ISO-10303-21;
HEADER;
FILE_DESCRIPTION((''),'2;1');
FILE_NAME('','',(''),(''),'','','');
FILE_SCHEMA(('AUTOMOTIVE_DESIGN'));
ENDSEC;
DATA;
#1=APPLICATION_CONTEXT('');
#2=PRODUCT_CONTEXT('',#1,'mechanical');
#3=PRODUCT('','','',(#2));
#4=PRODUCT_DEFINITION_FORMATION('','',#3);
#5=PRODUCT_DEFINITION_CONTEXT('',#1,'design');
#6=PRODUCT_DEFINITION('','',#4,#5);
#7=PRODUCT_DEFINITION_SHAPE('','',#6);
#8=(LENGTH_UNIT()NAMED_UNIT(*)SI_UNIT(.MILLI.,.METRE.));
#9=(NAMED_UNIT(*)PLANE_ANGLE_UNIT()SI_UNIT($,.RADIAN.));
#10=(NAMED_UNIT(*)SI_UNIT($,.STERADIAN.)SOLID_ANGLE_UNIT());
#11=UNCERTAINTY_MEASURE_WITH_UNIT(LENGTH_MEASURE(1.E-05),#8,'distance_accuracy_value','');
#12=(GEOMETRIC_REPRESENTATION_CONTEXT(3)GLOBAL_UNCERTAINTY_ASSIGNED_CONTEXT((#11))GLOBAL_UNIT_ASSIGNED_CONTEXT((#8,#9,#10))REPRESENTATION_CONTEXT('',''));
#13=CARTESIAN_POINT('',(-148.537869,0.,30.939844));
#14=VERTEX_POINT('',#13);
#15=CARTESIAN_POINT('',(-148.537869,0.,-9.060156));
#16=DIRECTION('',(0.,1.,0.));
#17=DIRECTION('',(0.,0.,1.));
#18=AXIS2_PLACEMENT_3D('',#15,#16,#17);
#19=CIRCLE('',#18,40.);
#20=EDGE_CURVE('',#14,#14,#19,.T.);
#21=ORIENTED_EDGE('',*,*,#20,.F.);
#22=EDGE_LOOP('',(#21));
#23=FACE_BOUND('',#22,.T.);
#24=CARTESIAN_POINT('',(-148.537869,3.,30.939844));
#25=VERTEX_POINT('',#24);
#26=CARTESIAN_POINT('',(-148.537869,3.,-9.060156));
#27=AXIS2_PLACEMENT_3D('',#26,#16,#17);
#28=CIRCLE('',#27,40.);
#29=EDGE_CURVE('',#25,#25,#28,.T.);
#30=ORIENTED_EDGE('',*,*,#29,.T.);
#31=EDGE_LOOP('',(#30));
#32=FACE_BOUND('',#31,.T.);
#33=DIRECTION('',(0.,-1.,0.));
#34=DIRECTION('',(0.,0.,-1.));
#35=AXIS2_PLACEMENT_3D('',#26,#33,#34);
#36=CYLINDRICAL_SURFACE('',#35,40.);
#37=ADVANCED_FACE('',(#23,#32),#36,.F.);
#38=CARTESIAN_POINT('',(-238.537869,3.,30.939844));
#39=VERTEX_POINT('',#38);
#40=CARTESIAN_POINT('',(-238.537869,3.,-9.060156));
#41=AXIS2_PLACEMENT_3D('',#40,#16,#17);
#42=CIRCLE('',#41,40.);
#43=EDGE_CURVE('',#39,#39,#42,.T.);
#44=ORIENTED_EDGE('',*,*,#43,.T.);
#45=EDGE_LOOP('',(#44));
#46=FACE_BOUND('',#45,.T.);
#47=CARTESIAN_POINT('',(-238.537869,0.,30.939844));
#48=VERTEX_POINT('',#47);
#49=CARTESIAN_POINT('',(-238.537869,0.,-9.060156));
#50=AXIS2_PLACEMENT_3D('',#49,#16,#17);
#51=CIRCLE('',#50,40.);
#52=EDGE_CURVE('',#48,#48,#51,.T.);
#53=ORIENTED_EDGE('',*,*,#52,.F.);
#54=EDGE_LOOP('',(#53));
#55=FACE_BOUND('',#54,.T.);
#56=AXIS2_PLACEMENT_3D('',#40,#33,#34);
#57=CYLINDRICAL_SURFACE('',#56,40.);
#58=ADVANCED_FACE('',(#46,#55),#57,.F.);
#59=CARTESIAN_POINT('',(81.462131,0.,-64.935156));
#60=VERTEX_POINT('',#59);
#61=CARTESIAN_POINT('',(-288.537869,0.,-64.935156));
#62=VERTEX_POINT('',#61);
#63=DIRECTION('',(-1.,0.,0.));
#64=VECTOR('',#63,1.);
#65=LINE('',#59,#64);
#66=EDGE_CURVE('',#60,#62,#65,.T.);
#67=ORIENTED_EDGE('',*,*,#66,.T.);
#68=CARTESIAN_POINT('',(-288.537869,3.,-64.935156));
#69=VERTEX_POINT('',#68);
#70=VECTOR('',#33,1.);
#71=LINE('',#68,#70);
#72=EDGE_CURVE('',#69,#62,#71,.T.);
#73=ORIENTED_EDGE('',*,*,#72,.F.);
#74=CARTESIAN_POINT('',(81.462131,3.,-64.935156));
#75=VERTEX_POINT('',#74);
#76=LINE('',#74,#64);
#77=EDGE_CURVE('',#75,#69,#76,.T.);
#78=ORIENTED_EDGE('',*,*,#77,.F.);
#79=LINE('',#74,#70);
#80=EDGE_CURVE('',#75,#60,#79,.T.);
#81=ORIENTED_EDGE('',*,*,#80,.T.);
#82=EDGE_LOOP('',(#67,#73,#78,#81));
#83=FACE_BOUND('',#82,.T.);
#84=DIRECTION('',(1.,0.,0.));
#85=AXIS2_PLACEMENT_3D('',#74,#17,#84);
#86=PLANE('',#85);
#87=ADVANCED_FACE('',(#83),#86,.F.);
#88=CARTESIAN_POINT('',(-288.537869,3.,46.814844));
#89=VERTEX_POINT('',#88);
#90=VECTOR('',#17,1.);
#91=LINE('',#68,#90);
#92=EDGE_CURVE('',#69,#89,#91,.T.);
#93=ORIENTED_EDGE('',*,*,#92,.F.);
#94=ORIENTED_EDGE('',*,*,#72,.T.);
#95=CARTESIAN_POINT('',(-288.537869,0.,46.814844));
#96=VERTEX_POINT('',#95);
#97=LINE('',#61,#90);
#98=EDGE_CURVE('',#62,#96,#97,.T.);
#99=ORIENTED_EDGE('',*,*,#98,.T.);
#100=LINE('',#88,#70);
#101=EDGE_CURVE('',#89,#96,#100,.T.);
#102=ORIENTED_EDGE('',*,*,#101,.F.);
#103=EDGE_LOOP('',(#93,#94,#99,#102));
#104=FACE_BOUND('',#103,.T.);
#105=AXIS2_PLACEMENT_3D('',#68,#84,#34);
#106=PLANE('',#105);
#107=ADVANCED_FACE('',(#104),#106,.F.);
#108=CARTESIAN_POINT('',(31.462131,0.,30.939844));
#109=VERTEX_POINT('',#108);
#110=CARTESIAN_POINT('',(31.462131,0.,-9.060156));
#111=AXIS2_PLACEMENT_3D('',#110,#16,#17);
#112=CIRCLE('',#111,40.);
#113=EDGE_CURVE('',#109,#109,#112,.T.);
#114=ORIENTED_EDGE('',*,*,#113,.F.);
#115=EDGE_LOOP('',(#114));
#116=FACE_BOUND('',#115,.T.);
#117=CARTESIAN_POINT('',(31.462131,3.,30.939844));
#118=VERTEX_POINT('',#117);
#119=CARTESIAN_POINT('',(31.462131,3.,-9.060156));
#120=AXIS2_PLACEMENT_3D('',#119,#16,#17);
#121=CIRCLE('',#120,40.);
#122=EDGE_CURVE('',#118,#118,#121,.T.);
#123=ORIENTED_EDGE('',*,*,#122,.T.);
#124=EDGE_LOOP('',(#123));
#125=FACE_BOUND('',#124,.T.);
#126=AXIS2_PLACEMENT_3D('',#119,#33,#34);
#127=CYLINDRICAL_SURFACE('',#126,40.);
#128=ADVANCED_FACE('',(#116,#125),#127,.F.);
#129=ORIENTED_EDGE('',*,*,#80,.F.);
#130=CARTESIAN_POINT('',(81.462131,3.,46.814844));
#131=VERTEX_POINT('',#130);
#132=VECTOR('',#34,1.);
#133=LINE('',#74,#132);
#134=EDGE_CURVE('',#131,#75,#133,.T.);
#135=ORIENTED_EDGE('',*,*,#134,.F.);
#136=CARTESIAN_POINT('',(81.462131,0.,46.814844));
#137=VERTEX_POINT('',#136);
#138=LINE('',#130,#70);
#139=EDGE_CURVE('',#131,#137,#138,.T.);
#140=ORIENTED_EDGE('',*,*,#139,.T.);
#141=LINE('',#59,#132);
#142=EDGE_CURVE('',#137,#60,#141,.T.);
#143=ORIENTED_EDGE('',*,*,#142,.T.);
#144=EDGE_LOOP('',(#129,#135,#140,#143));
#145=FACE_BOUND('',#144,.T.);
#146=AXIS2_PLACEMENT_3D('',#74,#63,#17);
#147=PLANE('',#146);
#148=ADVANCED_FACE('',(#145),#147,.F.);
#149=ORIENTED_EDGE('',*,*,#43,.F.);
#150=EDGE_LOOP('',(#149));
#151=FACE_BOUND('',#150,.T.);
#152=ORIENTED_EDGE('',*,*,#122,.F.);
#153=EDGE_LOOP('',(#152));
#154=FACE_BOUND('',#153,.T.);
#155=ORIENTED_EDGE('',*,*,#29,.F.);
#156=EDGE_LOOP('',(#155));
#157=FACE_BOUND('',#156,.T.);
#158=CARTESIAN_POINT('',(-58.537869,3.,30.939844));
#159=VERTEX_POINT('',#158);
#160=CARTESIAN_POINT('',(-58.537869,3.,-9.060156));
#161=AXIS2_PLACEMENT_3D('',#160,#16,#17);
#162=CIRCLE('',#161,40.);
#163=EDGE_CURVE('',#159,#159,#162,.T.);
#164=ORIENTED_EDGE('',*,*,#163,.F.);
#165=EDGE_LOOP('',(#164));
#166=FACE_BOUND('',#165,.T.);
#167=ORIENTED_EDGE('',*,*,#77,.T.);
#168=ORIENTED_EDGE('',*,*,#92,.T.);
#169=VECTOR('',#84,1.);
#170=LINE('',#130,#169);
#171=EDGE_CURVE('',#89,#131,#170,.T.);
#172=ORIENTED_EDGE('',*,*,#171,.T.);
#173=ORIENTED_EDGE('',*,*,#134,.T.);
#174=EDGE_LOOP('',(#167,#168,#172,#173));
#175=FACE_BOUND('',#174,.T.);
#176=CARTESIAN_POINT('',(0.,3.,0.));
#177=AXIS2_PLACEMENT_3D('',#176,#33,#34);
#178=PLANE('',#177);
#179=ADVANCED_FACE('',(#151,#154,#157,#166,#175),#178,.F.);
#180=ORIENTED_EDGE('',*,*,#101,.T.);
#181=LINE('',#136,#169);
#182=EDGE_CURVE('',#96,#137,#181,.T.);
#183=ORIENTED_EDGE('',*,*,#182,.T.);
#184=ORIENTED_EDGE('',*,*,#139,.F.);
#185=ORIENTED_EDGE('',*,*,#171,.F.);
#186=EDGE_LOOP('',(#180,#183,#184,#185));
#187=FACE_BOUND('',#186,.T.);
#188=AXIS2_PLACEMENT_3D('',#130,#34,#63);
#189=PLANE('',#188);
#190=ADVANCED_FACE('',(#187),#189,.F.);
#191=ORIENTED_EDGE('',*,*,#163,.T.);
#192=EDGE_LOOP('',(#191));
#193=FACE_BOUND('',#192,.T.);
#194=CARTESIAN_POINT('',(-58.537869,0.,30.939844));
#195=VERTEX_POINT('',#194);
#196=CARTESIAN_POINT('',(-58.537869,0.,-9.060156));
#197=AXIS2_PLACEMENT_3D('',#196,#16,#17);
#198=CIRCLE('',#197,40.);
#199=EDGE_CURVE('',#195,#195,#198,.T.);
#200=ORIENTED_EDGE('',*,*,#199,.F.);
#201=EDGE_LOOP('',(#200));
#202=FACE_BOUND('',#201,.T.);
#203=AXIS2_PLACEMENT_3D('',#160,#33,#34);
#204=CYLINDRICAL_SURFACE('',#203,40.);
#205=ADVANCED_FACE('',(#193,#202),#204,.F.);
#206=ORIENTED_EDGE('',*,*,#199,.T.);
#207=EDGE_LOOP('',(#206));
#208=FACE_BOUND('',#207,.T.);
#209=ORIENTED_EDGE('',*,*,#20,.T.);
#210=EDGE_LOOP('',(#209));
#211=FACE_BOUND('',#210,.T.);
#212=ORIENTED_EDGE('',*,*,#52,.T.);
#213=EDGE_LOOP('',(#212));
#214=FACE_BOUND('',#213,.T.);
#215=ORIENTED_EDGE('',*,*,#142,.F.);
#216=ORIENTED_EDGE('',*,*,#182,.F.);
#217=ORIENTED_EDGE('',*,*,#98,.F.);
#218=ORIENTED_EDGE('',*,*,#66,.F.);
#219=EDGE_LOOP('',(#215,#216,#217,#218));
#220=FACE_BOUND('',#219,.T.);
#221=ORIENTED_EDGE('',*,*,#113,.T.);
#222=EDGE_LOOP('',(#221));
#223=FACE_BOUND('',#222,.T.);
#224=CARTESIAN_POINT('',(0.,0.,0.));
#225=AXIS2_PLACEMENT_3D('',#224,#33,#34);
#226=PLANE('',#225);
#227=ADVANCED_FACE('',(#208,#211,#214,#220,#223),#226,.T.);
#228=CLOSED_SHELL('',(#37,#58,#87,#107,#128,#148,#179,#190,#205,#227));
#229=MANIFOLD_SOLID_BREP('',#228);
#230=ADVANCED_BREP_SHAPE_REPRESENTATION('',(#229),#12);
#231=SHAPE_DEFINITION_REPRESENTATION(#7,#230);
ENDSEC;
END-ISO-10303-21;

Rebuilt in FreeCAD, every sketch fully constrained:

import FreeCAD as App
import Part
import Sketcher
from FreeCAD import Vector


def add_polygon(sketch, points):
    """Adds a closed chain of lines whose ends are joined by coincident constraints."""
    first, n = sketch.GeometryCount, len(points)
    for a, b in zip(points, points[1:] + points[:1]):
        sketch.addGeometry(Part.LineSegment(App.Vector(*a, 0), App.Vector(*b, 0)), False)
    for i in range(n):
        sketch.addConstraint(Sketcher.Constraint("Coincident", first + i, 2, first + (i + 1) % n, 1))

doc = App.newDocument("Part")
body = doc.addObject("PartDesign::Body", "Body")

# Sketch on XZ plane
sketch1 = body.newObject("Sketcher::SketchObject", "Sketch")
sketch1.AttachmentSupport = (doc.getObject("XZ_Plane"), [""])
sketch1.MapMode = "FlatFace"
add_polygon(sketch1, [(-289, -65), (-289, 47), (81, 47), (81, -65)])  # lines 0-3
sketch1.addGeometry(Part.Circle(Vector(-239, -9, 0), Vector(0, 0, 1), 40), False)  # 4
sketch1.addGeometry(Part.Circle(Vector(-149, -9, 0), Vector(0, 0, 1), 40), False)  # 5
sketch1.addGeometry(Part.Circle(Vector(-59, -9, 0), Vector(0, 0, 1), 40), False)  # 6
sketch1.addGeometry(Part.Circle(Vector(31, -9, 0), Vector(0, 0, 1), 40), False)  # 7
sketch1.addConstraint(Sketcher.Constraint("Vertical", 0))
sketch1.addConstraint(Sketcher.Constraint("Horizontal", 1))
sketch1.addConstraint(Sketcher.Constraint("Vertical", 2))
sketch1.addConstraint(Sketcher.Constraint("Horizontal", 3))
sketch1.addConstraint(Sketcher.Constraint("Equal", 4, 5))
sketch1.addConstraint(Sketcher.Constraint("Equal", 5, 6))
sketch1.addConstraint(Sketcher.Constraint("Equal", 6, 7))
sketch1.addConstraint(Sketcher.Constraint("Horizontal", 4, 3, 5, 3))
sketch1.addConstraint(Sketcher.Constraint("Horizontal", 5, 3, 6, 3))
sketch1.addConstraint(Sketcher.Constraint("Horizontal", 6, 3, 7, 3))
sketch1.addConstraint(Sketcher.Constraint("Diameter", 4, 80.0))
sketch1.addConstraint(Sketcher.Constraint("DistanceX", 1, 1, 1, 2, 370.0))
sketch1.addConstraint(Sketcher.Constraint("DistanceX", 4, 3, 5, 3, 90.0))
sketch1.addConstraint(Sketcher.Constraint("DistanceX", 5, 3, 6, 3, 90.0))
sketch1.addConstraint(Sketcher.Constraint("DistanceX", 6, 3, 7, 3, 90.0))
sketch1.addConstraint(Sketcher.Constraint("DistanceX", 0, 2, 4, 3, 50.0))
sketch1.addConstraint(Sketcher.Constraint("DistanceY", 0, 1, 0, 2, 111.75))
sketch1.addConstraint(Sketcher.Constraint("DistanceY", 4, 3, 0, 2, 55.875))
sketch1.addConstraint(Sketcher.Constraint("DistanceX", 4, 3, -1, 1, 238.537869))
sketch1.addConstraint(Sketcher.Constraint("DistanceY", 4, 3, -1, 1, 9.060156))
pad1 = body.newObject("PartDesign::Pad", "Pad")
pad1.Profile = sketch1
pad1.Length = 3
pad1.Reversed = True

doc.recompute()
